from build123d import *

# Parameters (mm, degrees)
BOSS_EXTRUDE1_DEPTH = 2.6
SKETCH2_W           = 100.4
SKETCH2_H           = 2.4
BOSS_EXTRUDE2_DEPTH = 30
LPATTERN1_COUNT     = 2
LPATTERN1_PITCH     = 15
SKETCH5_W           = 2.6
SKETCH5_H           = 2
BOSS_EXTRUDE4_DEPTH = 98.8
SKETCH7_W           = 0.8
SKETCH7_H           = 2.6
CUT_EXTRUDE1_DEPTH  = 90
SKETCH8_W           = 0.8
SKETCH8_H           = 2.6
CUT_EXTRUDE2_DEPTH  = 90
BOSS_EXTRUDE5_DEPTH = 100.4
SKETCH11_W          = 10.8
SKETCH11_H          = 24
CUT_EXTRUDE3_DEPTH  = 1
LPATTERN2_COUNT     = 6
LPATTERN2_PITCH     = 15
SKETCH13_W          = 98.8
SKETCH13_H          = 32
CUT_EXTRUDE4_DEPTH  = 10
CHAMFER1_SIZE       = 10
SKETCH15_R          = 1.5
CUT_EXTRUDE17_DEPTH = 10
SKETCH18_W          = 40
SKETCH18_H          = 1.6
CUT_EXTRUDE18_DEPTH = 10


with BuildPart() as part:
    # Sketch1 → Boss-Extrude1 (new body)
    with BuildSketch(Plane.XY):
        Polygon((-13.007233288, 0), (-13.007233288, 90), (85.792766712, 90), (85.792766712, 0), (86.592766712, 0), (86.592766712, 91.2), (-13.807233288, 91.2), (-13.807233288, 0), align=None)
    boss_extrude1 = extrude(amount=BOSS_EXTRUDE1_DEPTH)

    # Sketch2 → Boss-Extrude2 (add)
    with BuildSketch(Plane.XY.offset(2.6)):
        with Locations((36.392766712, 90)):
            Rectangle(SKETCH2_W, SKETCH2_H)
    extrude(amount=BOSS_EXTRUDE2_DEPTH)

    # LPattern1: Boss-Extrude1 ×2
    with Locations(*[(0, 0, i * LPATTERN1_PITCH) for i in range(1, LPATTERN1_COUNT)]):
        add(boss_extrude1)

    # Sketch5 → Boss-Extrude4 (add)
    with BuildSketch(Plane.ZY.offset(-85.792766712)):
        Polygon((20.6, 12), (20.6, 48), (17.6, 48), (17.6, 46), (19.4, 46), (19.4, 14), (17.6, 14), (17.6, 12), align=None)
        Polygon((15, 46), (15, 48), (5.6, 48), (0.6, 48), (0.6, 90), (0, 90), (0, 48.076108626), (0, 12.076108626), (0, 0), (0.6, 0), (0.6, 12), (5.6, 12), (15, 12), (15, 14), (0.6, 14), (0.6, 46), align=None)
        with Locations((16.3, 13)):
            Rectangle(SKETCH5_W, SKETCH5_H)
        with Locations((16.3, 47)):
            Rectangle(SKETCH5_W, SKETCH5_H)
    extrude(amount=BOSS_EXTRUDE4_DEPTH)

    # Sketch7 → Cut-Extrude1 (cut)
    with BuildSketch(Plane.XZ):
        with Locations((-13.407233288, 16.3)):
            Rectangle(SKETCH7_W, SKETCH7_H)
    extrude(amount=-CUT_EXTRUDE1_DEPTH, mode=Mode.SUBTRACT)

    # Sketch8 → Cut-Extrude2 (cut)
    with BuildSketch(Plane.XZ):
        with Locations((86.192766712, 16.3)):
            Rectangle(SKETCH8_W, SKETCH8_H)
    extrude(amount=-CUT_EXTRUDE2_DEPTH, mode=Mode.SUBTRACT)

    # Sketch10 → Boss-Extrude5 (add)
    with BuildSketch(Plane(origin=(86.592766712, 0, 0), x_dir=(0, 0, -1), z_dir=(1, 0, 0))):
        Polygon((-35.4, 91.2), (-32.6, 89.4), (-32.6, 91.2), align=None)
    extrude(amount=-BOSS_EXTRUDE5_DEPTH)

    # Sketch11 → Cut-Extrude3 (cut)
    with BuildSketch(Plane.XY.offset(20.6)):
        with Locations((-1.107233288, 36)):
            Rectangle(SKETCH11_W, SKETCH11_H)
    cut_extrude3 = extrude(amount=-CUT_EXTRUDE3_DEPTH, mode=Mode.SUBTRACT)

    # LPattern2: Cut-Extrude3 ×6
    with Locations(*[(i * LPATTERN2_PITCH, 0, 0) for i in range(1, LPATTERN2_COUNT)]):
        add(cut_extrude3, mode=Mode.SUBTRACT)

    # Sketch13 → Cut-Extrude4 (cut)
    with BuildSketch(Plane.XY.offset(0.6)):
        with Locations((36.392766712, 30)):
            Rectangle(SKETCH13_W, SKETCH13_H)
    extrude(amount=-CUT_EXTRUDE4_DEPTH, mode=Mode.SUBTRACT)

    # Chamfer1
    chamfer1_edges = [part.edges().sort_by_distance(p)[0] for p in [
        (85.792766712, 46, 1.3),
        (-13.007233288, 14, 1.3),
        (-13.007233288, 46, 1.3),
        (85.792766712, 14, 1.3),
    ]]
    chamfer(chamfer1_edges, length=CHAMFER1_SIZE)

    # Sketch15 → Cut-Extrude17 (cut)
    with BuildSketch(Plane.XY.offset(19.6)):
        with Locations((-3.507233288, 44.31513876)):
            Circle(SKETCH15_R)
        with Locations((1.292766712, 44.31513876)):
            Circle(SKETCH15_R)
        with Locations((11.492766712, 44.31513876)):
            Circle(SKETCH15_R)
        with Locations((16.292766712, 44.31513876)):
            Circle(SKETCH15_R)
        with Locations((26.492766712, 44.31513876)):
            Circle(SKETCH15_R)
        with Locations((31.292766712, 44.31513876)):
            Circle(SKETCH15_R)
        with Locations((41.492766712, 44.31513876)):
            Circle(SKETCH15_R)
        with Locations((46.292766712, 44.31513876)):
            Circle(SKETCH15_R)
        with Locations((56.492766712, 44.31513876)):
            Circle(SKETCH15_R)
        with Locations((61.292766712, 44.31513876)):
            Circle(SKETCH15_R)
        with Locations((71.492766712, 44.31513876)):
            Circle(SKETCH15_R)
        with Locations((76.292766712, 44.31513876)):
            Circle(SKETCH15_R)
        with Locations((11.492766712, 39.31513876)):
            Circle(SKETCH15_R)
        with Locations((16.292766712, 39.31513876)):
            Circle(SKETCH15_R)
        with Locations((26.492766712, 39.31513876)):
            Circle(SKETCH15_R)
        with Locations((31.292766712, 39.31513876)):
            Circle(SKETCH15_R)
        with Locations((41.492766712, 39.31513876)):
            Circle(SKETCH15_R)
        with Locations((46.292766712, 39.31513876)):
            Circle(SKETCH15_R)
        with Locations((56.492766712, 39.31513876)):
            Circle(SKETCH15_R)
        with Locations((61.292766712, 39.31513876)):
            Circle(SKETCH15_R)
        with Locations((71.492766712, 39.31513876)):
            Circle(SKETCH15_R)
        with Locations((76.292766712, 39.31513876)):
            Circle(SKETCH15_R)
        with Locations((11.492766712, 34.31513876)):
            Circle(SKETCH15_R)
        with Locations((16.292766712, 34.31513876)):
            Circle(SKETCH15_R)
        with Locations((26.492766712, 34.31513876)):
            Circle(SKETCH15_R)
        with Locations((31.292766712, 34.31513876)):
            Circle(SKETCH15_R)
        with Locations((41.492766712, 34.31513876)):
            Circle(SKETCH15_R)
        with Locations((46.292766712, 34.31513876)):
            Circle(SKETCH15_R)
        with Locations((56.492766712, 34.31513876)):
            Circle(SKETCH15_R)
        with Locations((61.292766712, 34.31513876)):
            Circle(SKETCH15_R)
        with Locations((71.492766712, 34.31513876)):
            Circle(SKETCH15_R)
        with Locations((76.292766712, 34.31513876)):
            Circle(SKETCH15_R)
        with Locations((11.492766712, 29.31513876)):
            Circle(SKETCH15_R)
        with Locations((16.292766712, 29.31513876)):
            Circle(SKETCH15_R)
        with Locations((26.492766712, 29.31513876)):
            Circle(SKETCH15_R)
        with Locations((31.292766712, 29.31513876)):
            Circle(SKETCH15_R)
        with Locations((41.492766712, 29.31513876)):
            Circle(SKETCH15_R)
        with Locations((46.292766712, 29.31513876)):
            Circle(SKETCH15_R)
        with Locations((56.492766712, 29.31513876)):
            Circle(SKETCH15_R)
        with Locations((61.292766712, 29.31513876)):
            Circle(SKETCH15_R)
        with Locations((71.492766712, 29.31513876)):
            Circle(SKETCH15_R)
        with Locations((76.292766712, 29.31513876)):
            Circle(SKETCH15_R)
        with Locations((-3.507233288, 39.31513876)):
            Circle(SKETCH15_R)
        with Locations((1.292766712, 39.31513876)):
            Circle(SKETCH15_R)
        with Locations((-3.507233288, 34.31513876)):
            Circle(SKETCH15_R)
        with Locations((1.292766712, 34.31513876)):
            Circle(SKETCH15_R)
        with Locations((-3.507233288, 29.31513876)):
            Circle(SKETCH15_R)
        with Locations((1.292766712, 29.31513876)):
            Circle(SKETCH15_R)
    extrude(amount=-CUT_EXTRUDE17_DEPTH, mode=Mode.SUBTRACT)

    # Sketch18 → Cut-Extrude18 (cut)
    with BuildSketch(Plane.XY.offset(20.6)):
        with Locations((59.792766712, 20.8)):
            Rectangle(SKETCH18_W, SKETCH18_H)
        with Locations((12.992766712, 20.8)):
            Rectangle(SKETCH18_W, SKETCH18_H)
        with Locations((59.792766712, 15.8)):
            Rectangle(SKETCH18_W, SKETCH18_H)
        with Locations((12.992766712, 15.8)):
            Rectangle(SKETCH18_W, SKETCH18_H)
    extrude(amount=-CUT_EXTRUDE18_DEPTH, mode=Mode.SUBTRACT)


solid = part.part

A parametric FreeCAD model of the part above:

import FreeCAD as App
import Part
import Sketcher
from FreeCAD import Vector


def edges_at(feature, points):
    """Names of the edges that pass closest to the given points."""
    edges = feature.Shape.Edges
    near = lambda p: min(range(len(edges)), key=lambda i: edges[i].distToShape(Part.Vertex(*p))[0])
    return sorted({f"Edge{near(p) + 1}" for p in points})


def add_polygon(sketch, points):
    """Adds a closed chain of lines whose ends are joined by coincident constraints."""
    first, n = sketch.GeometryCount, len(points)
    for a, b in zip(points, points[1:] + points[:1]):
        sketch.addGeometry(Part.LineSegment(App.Vector(*a, 0), App.Vector(*b, 0)), False)
    for i in range(n):
        sketch.addConstraint(Sketcher.Constraint("Coincident", first + i, 2, first + (i + 1) % n, 1))

doc = App.newDocument("Part")
body = doc.addObject("PartDesign::Body", "Body")

# Sketch on XY plane
sketch1 = body.newObject("Sketcher::SketchObject", "Sketch")
sketch1.AttachmentSupport = (doc.getObject("XY_Plane"), [""])
sketch1.MapMode = "FlatFace"
add_polygon(sketch1, [(-13, 0), (-13, 90), (85.8, 90), (85.8, 0), (86.6, 0), (86.6, 91.2), (-13.8, 91.2), (-13.8, 0)])  # lines 0-7
sketch1.addConstraint(Sketcher.Constraint("Vertical", 0))
sketch1.addConstraint(Sketcher.Constraint("Horizontal", 1))
sketch1.addConstraint(Sketcher.Constraint("Vertical", 2))
sketch1.addConstraint(Sketcher.Constraint("Horizontal", 3))
sketch1.addConstraint(Sketcher.Constraint("Vertical", 4))
sketch1.addConstraint(Sketcher.Constraint("Horizontal", 5))
sketch1.addConstraint(Sketcher.Constraint("Vertical", 6))
sketch1.addConstraint(Sketcher.Constraint("Horizontal", 7))
sketch1.addConstraint(Sketcher.Constraint("PointOnObject", 2, 2, -1))
sketch1.addConstraint(Sketcher.Constraint("PointOnObject", 6, 2, -1))
sketch1.addConstraint(Sketcher.Constraint("Equal", 3, 7))
sketch1.addConstraint(Sketcher.Constraint("DistanceY", 0, 1, 0, 2, 90.0))
sketch1.addConstraint(Sketcher.Constraint("DistanceX", 1, 1, 1, 2, 98.8))
sketch1.addConstraint(Sketcher.Constraint("DistanceX", 3, 1, 3, 2, 0.8))
sketch1.addConstraint(Sketcher.Constraint("DistanceY", 4, 1, 4, 2, 91.2))
sketch1.addConstraint(Sketcher.Constraint("DistanceX", 0, 2, -1, 1, 13.007233))
pad1 = body.newObject("PartDesign::Pad", "Pad")
pad1.Profile = sketch1
pad1.Length = 2.6

# Sketch on XY plane
sketch2 = body.newObject("Sketcher::SketchObject", "Sketch001")
sketch2.AttachmentSupport = (doc.getObject("XY_Plane"), [""])
sketch2.MapMode = "FlatFace"
sketch2.AttachmentOffset = App.Placement(Vector(0, 0, 2.6), App.Rotation())
add_polygon(sketch2, [(-13.8, 91.2), (-13.8, 88.8), (86.6, 88.8), (86.6, 91.2)])  # lines 0-3
sketch2.addConstraint(Sketcher.Constraint("Vertical", 0))
sketch2.addConstraint(Sketcher.Constraint("Horizontal", 1))
sketch2.addConstraint(Sketcher.Constraint("Vertical", 2))
sketch2.addConstraint(Sketcher.Constraint("Horizontal", 3))
sketch2.addConstraint(Sketcher.Constraint("DistanceX", 1, 1, 1, 2, 100.4))
sketch2.addConstraint(Sketcher.Constraint("DistanceY", 0, 2, 0, 1, 2.4))
sketch2.addConstraint(Sketcher.Constraint("DistanceY", -1, 1, 0, 2, 88.8))
sketch2.addConstraint(Sketcher.Constraint("DistanceX", 0, 2, -1, 1, 13.807233))
pad2 = body.newObject("PartDesign::Pad", "Pad001")
pad2.Profile = sketch2
pad2.Length = 30
doc.recompute()

linearpattern = body.newObject("PartDesign::LinearPattern", "LinearPattern")
linearpattern.Originals = [pad1]
linearpattern.Direction = (doc.getObject("Z_Axis"), [""])
linearpattern.Mode = "offset"
linearpattern.Offset = 15
linearpattern.Occurrences = 2
body.Tip = linearpattern

# Sketch on YZ plane
sketch3 = body.newObject("Sketcher::SketchObject", "Sketch002")
sketch3.AttachmentSupport = (doc.getObject("YZ_Plane"), [""])
sketch3.MapMode = "FlatFace"
sketch3.AttachmentOffset = App.Placement(Vector(0, 0, 85.792767), App.Rotation())
add_polygon(sketch3, [(12, 20.6), (48, 20.6), (48, 0.6), (90, 0.6), (90, 0), (0, 0), (0, 0.6), (12, 0.6)])  # lines 0-7
add_polygon(sketch3, [(46, 19.4), (14, 19.4), (14, 0.6), (46, 0.6)])  # lines 8-11
sketch3.addConstraint(Sketcher.Constraint("Horizontal", 0))
sketch3.addConstraint(Sketcher.Constraint("Vertical", 1))
sketch3.addConstraint(Sketcher.Constraint("Horizontal", 2))
sketch3.addConstraint(Sketcher.Constraint("Vertical", 3))
sketch3.addConstraint(Sketcher.Constraint("Horizontal", 4))
sketch3.addConstraint(Sketcher.Constraint("Vertical", 5))
sketch3.addConstraint(Sketcher.Constraint("Horizontal", 6))
sketch3.addConstraint(Sketcher.Constraint("Vertical", 7))
sketch3.addConstraint(Sketcher.Constraint("Horizontal", 8))
sketch3.addConstraint(Sketcher.Constraint("Vertical", 9))
sketch3.addConstraint(Sketcher.Constraint("Horizontal", 10))
sketch3.addConstraint(Sketcher.Constraint("Vertical", 11))
sketch3.addConstraint(Sketcher.Constraint("Coincident", 4, 2, -1, 1))
sketch3.addConstraint(Sketcher.Constraint("Horizontal", 2, 2, 5, 2))
sketch3.addConstraint(Sketcher.Constraint("Horizontal", 6, 2, 9, 2))
sketch3.addConstraint(Sketcher.Constraint("DistanceX", 0, 1, 0, 2, 36.0))
sketch3.addConstraint(Sketcher.Constraint("DistanceX", 2, 1, 2, 2, 42.0))
sketch3.addConstraint(Sketcher.Constraint("DistanceX", 4, 2, 4, 1, 90.0))
sketch3.addConstraint(Sketcher.Constraint("DistanceX", 8, 2, 8, 1, 32.0))
sketch3.addConstraint(Sketcher.Constraint("DistanceY", 1, 2, 1, 1, 20.0))
sketch3.addConstraint(Sketcher.Constraint("DistanceY", 3, 2, 3, 1, 0.6))
sketch3.addConstraint(Sketcher.Constraint("DistanceY", 9, 2, 9, 1, 18.8))
sketch3.addConstraint(Sketcher.Constraint("DistanceX", -1, 1, 8, 2, 14.0))
pad3 = body.newObject("PartDesign::Pad", "Pad002")
pad3.Profile = sketch3
pad3.Length = 98.8
pad3.Reversed = True

# Sketch on XZ plane
sketch4 = body.newObject("Sketcher::SketchObject", "Sketch003")
sketch4.AttachmentSupport = (doc.getObject("XZ_Plane"), [""])
sketch4.MapMode = "FlatFace"
add_polygon(sketch4, [(-13.8, 17.6), (-13.8, 15), (-13, 15), (-13, 17.6)])  # lines 0-3
sketch4.addConstraint(Sketcher.Constraint("Vertical", 0))
sketch4.addConstraint(Sketcher.Constraint("Horizontal", 1))
sketch4.addConstraint(Sketcher.Constraint("Vertical", 2))
sketch4.addConstraint(Sketcher.Constraint("Horizontal", 3))
sketch4.addConstraint(Sketcher.Constraint("DistanceX", 1, 1, 1, 2, 0.8))
sketch4.addConstraint(Sketcher.Constraint("DistanceY", 0, 2, 0, 1, 2.6))
sketch4.addConstraint(Sketcher.Constraint("DistanceY", -1, 1, 0, 2, 15.0))
sketch4.addConstraint(Sketcher.Constraint("DistanceX", 0, 2, -1, 1, 13.807233))
pocket1 = body.newObject("PartDesign::Pocket", "Pocket")
pocket1.Profile = sketch4
pocket1.Length = 90

# Sketch on XZ plane
sketch5 = body.newObject("Sketcher::SketchObject", "Sketch004")
sketch5.AttachmentSupport = (doc.getObject("XZ_Plane"), [""])
sketch5.MapMode = "FlatFace"
add_polygon(sketch5, [(85.8, 17.6), (85.8, 15), (86.6, 15), (86.6, 17.6)])  # lines 0-3
sketch5.addConstraint(Sketcher.Constraint("Vertical", 0))
sketch5.addConstraint(Sketcher.Constraint("Horizontal", 1))
sketch5.addConstraint(Sketcher.Constraint("Vertical", 2))
sketch5.addConstraint(Sketcher.Constraint("Horizontal", 3))
sketch5.addConstraint(Sketcher.Constraint("DistanceX", 1, 1, 1, 2, 0.8))
sketch5.addConstraint(Sketcher.Constraint("DistanceY", 0, 2, 0, 1, 2.6))
sketch5.addConstraint(Sketcher.Constraint("DistanceY", -1, 1, 0, 2, 15.0))
sketch5.addConstraint(Sketcher.Constraint("DistanceX", -1, 1, 0, 2, 85.792767))
pocket2 = body.newObject("PartDesign::Pocket", "Pocket001")
pocket2.Profile = sketch5
pocket2.Length = 90

# Sketch on YZ plane
sketch6 = body.newObject("Sketcher::SketchObject", "Sketch005")
sketch6.AttachmentSupport = (doc.getObject("YZ_Plane"), [""])
sketch6.MapMode = "FlatFace"
sketch6.AttachmentOffset = App.Placement(Vector(0, 0, 86.592767), App.Rotation())
add_polygon(sketch6, [(91.2, 35.4), (89.4, 32.6), (91.2, 32.6)])  # lines 0-2
sketch6.addConstraint(Sketcher.Constraint("Horizontal", 1))
sketch6.addConstraint(Sketcher.Constraint("Vertical", 2))
sketch6.addConstraint(Sketcher.Constraint("DistanceX", 1, 1, 1, 2, 1.8))
sketch6.addConstraint(Sketcher.Constraint("DistanceY", 2, 1, 2, 2, 2.8))
sketch6.addConstraint(Sketcher.Constraint("DistanceX", -1, 1, 0, 2, 89.4))
sketch6.addConstraint(Sketcher.Constraint("DistanceY", -1, 1, 0, 2, 32.6))
pad4 = body.newObject("PartDesign::Pad", "Pad003")
pad4.Profile = sketch6
pad4.Length = 100.4
pad4.Reversed = True

# Sketch on XY plane
sketch7 = body.newObject("Sketcher::SketchObject", "Sketch006")
sketch7.AttachmentSupport = (doc.getObject("XY_Plane"), [""])
sketch7.MapMode = "FlatFace"
sketch7.AttachmentOffset = App.Placement(Vector(0, 0, 20.6), App.Rotation())
add_polygon(sketch7, [(-7, 48), (-7, 24), (4, 24), (4, 48)])  # lines 0-3
sketch7.addConstraint(Sketcher.Constraint("Vertical", 0))
sketch7.addConstraint(Sketcher.Constraint("Horizontal", 1))
sketch7.addConstraint(Sketcher.Constraint("Vertical", 2))
sketch7.addConstraint(Sketcher.Constraint("Horizontal", 3))
sketch7.addConstraint(Sketcher.Constraint("DistanceY", 0, 2, 0, 1, 24.0))
sketch7.addConstraint(Sketcher.Constraint("DistanceX", 1, 1, 1, 2, 10.8))
sketch7.addConstraint(Sketcher.Constraint("DistanceY", -1, 1, 0, 2, 24.0))
sketch7.addConstraint(Sketcher.Constraint("DistanceX", 0, 2, -1, 1, 6.507233))
pocket3 = body.newObject("PartDesign::Pocket", "Pocket002")
pocket3.Profile = sketch7
pocket3.Length = 1
doc.recompute()

linearpattern2 = body.newObject("PartDesign::LinearPattern", "LinearPattern001")
linearpattern2.Originals = [pocket3]
linearpattern2.Direction = (doc.getObject("X_Axis"), [""])
linearpattern2.Mode = "offset"
linearpattern2.Offset = 15
linearpattern2.Occurrences = 6
body.Tip = linearpattern2

# Sketch on XY plane
sketch8 = body.newObject("Sketcher::SketchObject", "Sketch007")
sketch8.AttachmentSupport = (doc.getObject("XY_Plane"), [""])
sketch8.MapMode = "FlatFace"
sketch8.AttachmentOffset = App.Placement(Vector(0, 0, 0.6), App.Rotation())
add_polygon(sketch8, [(-13, 46), (-13, 14), (86, 14), (86, 46)])  # lines 0-3
sketch8.addConstraint(Sketcher.Constraint("Vertical", 0))
sketch8.addConstraint(Sketcher.Constraint("Horizontal", 1))
sketch8.addConstraint(Sketcher.Constraint("Vertical", 2))
sketch8.addConstraint(Sketcher.Constraint("Horizontal", 3))
sketch8.addConstraint(Sketcher.Constraint("DistanceY", 0, 2, 0, 1, 32.0))
sketch8.addConstraint(Sketcher.Constraint("DistanceX", 1, 1, 1, 2, 98.8))
sketch8.addConstraint(Sketcher.Constraint("DistanceY", -1, 1, 0, 2, 14.0))
sketch8.addConstraint(Sketcher.Constraint("DistanceX", 0, 2, -1, 1, 13.007233))
pocket4 = body.newObject("PartDesign::Pocket", "Pocket003")
pocket4.Profile = sketch8
pocket4.Length = 10
doc.recompute()

chamfer = body.newObject("PartDesign::Chamfer", "Chamfer")
chamfer.Base = (pocket4, edges_at(pocket4, [
    (85.793, 46, 1.3),
    (-13.007, 14, 1.3),
    (-13.007, 46, 1.3),
    (85.793, 14, 1.3),
]))
chamfer.Size = 10

# Sketch on XY plane
sketch9 = body.newObject("Sketcher::SketchObject", "Sketch008")
sketch9.AttachmentSupport = (doc.getObject("XY_Plane"), [""])
sketch9.MapMode = "FlatFace"
sketch9.AttachmentOffset = App.Placement(Vector(0, 0, 19.6), App.Rotation())
sketch9.addGeometry(Part.Circle(Vector(-3.5, 44.3, 0), Vector(0, 0, 1), 1.5), False)
sketch9.addGeometry(Part.Circle(Vector(1.3, 44.3, 0), Vector(0, 0, 1), 1.5), False)
sketch9.addGeometry(Part.Circle(Vector(11.5, 44.3, 0), Vector(0, 0, 1), 1.5), False)
sketch9.addGeometry(Part.Circle(Vector(16.3, 44.3, 0), Vector(0, 0, 1), 1.5), False)
sketch9.addGeometry(Part.Circle(Vector(26.5, 44.3, 0), Vector(0, 0, 1), 1.5), False)
sketch9.addGeometry(Part.Circle(Vector(31.3, 44.3, 0), Vector(0, 0, 1), 1.5), False)
sketch9.addGeometry(Part.Circle(Vector(41.5, 44.3, 0), Vector(0, 0, 1), 1.5), False)
sketch9.addGeometry(Part.Circle(Vector(46.3, 44.3, 0), Vector(0, 0, 1), 1.5), False)
sketch9.addGeometry(Part.Circle(Vector(56.5, 44.3, 0), Vector(0, 0, 1), 1.5), False)
sketch9.addGeometry(Part.Circle(Vector(61.3, 44.3, 0), Vector(0, 0, 1), 1.5), False)
sketch9.addGeometry(Part.Circle(Vector(71.5, 44.3, 0), Vector(0, 0, 1), 1.5), False)
sketch9.addGeometry(Part.Circle(Vector(76.3, 44.3, 0), Vector(0, 0, 1), 1.5), False)
sketch9.addGeometry(Part.Circle(Vector(11.5, 39.3, 0), Vector(0, 0, 1), 1.5), False)
sketch9.addGeometry(Part.Circle(Vector(16.3, 39.3, 0), Vector(0, 0, 1), 1.5), False)
sketch9.addGeometry(Part.Circle(Vector(26.5, 39.3, 0), Vector(0, 0, 1), 1.5), False)
sketch9.addGeometry(Part.Circle(Vector(31.3, 39.3, 0), Vector(0, 0, 1), 1.5), False)
sketch9.addGeometry(Part.Circle(Vector(41.5, 39.3, 0), Vector(0, 0, 1), 1.5), False)
sketch9.addGeometry(Part.Circle(Vector(46.3, 39.3, 0), Vector(0, 0, 1), 1.5), False)
sketch9.addGeometry(Part.Circle(Vector(56.5, 39.3, 0), Vector(0, 0, 1), 1.5), False)
sketch9.addGeometry(Part.Circle(Vector(61.3, 39.3, 0), Vector(0, 0, 1), 1.5), False)
sketch9.addGeometry(Part.Circle(Vector(71.5, 39.3, 0), Vector(0, 0, 1), 1.5), False)
sketch9.addGeometry(Part.Circle(Vector(76.3, 39.3, 0), Vector(0, 0, 1), 1.5), False)
sketch9.addGeometry(Part.Circle(Vector(11.5, 34.3, 0), Vector(0, 0, 1), 1.5), False)
sketch9.addGeometry(Part.Circle(Vector(16.3, 34.3, 0), Vector(0, 0, 1), 1.5), False)
sketch9.addGeometry(Part.Circle(Vector(26.5, 34.3, 0), Vector(0, 0, 1), 1.5), False)
sketch9.addGeometry(Part.Circle(Vector(31.3, 34.3, 0), Vector(0, 0, 1), 1.5), False)
sketch9.addGeometry(Part.Circle(Vector(41.5, 34.3, 0), Vector(0, 0, 1), 1.5), False)
sketch9.addGeometry(Part.Circle(Vector(46.3, 34.3, 0), Vector(0, 0, 1), 1.5), False)
sketch9.addGeometry(Part.Circle(Vector(56.5, 34.3, 0), Vector(0, 0, 1), 1.5), False)
sketch9.addGeometry(Part.Circle(Vector(61.3, 34.3, 0), Vector(0, 0, 1), 1.5), False)
sketch9.addGeometry(Part.Circle(Vector(71.5, 34.3, 0), Vector(0, 0, 1), 1.5), False)
sketch9.addGeometry(Part.Circle(Vector(76.3, 34.3, 0), Vector(0, 0, 1), 1.5), False)
sketch9.addGeometry(Part.Circle(Vector(11.5, 29.3, 0), Vector(0, 0, 1), 1.5), False)
sketch9.addGeometry(Part.Circle(Vector(16.3, 29.3, 0), Vector(0, 0, 1), 1.5), False)
sketch9.addGeometry(Part.Circle(Vector(26.5, 29.3, 0), Vector(0, 0, 1), 1.5), False)
sketch9.addGeometry(Part.Circle(Vector(31.3, 29.3, 0), Vector(0, 0, 1), 1.5), False)
sketch9.addGeometry(Part.Circle(Vector(41.5, 29.3, 0), Vector(0, 0, 1), 1.5), False)
sketch9.addGeometry(Part.Circle(Vector(46.3, 29.3, 0), Vector(0, 0, 1), 1.5), False)
sketch9.addGeometry(Part.Circle(Vector(56.5, 29.3, 0), Vector(0, 0, 1), 1.5), False)
sketch9.addGeometry(Part.Circle(Vector(61.3, 29.3, 0), Vector(0, 0, 1), 1.5), False)
sketch9.addGeometry(Part.Circle(Vector(71.5, 29.3, 0), Vector(0, 0, 1), 1.5), False)
sketch9.addGeometry(Part.Circle(Vector(76.3, 29.3, 0), Vector(0, 0, 1), 1.5), False)
sketch9.addGeometry(Part.Circle(Vector(-3.5, 39.3, 0), Vector(0, 0, 1), 1.5), False)
sketch9.addGeometry(Part.Circle(Vector(1.3, 39.3, 0), Vector(0, 0, 1), 1.5), False)
sketch9.addGeometry(Part.Circle(Vector(-3.5, 34.3, 0), Vector(0, 0, 1), 1.5), False)
sketch9.addGeometry(Part.Circle(Vector(1.3, 34.3, 0), Vector(0, 0, 1), 1.5), False)
sketch9.addGeometry(Part.Circle(Vector(-3.5, 29.3, 0), Vector(0, 0, 1), 1.5), False)
sketch9.addGeometry(Part.Circle(Vector(1.3, 29.3, 0), Vector(0, 0, 1), 1.5), False)
sketch9.addConstraint(Sketcher.Constraint("Equal", 0, 1))
sketch9.addConstraint(Sketcher.Constraint("Equal", 1, 2))
sketch9.addConstraint(Sketcher.Constraint("Equal", 2, 3))
sketch9.addConstraint(Sketcher.Constraint("Equal", 3, 4))
sketch9.addConstraint(Sketcher.Constraint("Equal", 4, 5))
sketch9.addConstraint(Sketcher.Constraint("Equal", 5, 6))
sketch9.addConstraint(Sketcher.Constraint("Equal", 6, 7))
sketch9.addConstraint(Sketcher.Constraint("Equal", 7, 8))
sketch9.addConstraint(Sketcher.Constraint("Equal", 8, 9))
sketch9.addConstraint(Sketcher.Constraint("Equal", 9, 10))
sketch9.addConstraint(Sketcher.Constraint("Equal", 10, 11))
sketch9.addConstraint(Sketcher.Constraint("Equal", 11, 12))
sketch9.addConstraint(Sketcher.Constraint("Equal", 12, 13))
sketch9.addConstraint(Sketcher.Constraint("Equal", 13, 14))
sketch9.addConstraint(Sketcher.Constraint("Equal", 14, 15))
sketch9.addConstraint(Sketcher.Constraint("Equal", 15, 16))
sketch9.addConstraint(Sketcher.Constraint("Equal", 16, 17))
sketch9.addConstraint(Sketcher.Constraint("Equal", 17, 18))
sketch9.addConstraint(Sketcher.Constraint("Equal", 18, 19))
sketch9.addConstraint(Sketcher.Constraint("Equal", 19, 20))
sketch9.addConstraint(Sketcher.Constraint("Equal", 20, 21))
sketch9.addConstraint(Sketcher.Constraint("Equal", 21, 22))
sketch9.addConstraint(Sketcher.Constraint("Equal", 22, 23))
sketch9.addConstraint(Sketcher.Constraint("Equal", 23, 24))
sketch9.addConstraint(Sketcher.Constraint("Equal", 24, 25))
sketch9.addConstraint(Sketcher.Constraint("Equal", 25, 26))
sketch9.addConstraint(Sketcher.Constraint("Equal", 26, 27))
sketch9.addConstraint(Sketcher.Constraint("Equal", 27, 28))
sketch9.addConstraint(Sketcher.Constraint("Equal", 28, 29))
sketch9.addConstraint(Sketcher.Constraint("Equal", 29, 30))
sketch9.addConstraint(Sketcher.Constraint("Equal", 30, 31))
sketch9.addConstraint(Sketcher.Constraint("Equal", 31, 32))
sketch9.addConstraint(Sketcher.Constraint("Equal", 32, 33))
sketch9.addConstraint(Sketcher.Constraint("Equal", 33, 34))
sketch9.addConstraint(Sketcher.Constraint("Equal", 34, 35))
sketch9.addConstraint(Sketcher.Constraint("Equal", 35, 36))
sketch9.addConstraint(Sketcher.Constraint("Equal", 36, 37))
sketch9.addConstraint(Sketcher.Constraint("Equal", 37, 38))
sketch9.addConstraint(Sketcher.Constraint("Equal", 38, 39))
sketch9.addConstraint(Sketcher.Constraint("Equal", 39, 40))
sketch9.addConstraint(Sketcher.Constraint("Equal", 40, 41))
sketch9.addConstraint(Sketcher.Constraint("Equal", 41, 42))
sketch9.addConstraint(Sketcher.Constraint("Equal", 42, 43))
sketch9.addConstraint(Sketcher.Constraint("Equal", 43, 44))
sketch9.addConstraint(Sketcher.Constraint("Equal", 44, 45))
sketch9.addConstraint(Sketcher.Constraint("Equal", 45, 46))
sketch9.addConstraint(Sketcher.Constraint("Equal", 46, 47))
sketch9.addConstraint(Sketcher.Constraint("Horizontal", 0, 3, 1, 3))
sketch9.addConstraint(Sketcher.Constraint("Horizontal", 1, 3, 2, 3))
sketch9.addConstraint(Sketcher.Constraint("Horizontal", 2, 3, 3, 3))
sketch9.addConstraint(Sketcher.Constraint("Horizontal", 3, 3, 4, 3))
sketch9.addConstraint(Sketcher.Constraint("Horizontal", 4, 3, 5, 3))
sketch9.addConstraint(Sketcher.Constraint("Horizontal", 5, 3, 6, 3))
sketch9.addConstraint(Sketcher.Constraint("Horizontal", 6, 3, 7, 3))
sketch9.addConstraint(Sketcher.Constraint("Horizontal", 7, 3, 8, 3))
sketch9.addConstraint(Sketcher.Constraint("Horizontal", 8, 3, 9, 3))
sketch9.addConstraint(Sketcher.Constraint("Horizontal", 9, 3, 10, 3))
sketch9.addConstraint(Sketcher.Constraint("Horizontal", 10, 3, 11, 3))
sketch9.addConstraint(Sketcher.Constraint("Horizontal", 12, 3, 13, 3))
sketch9.addConstraint(Sketcher.Constraint("Horizontal", 13, 3, 14, 3))
sketch9.addConstraint(Sketcher.Constraint("Horizontal", 14, 3, 15, 3))
sketch9.addConstraint(Sketcher.Constraint("Horizontal", 15, 3, 16, 3))
sketch9.addConstraint(Sketcher.Constraint("Horizontal", 16, 3, 17, 3))
sketch9.addConstraint(Sketcher.Constraint("Horizontal", 17, 3, 18, 3))
sketch9.addConstraint(Sketcher.Constraint("Horizontal", 18, 3, 19, 3))
sketch9.addConstraint(Sketcher.Constraint("Horizontal", 19, 3, 20, 3))
sketch9.addConstraint(Sketcher.Constraint("Horizontal", 20, 3, 21, 3))
sketch9.addConstraint(Sketcher.Constraint("Horizontal", 22, 3, 23, 3))
sketch9.addConstraint(Sketcher.Constraint("Horizontal", 23, 3, 24, 3))
sketch9.addConstraint(Sketcher.Constraint("Horizontal", 24, 3, 25, 3))
sketch9.addConstraint(Sketcher.Constraint("Horizontal", 25, 3, 26, 3))
sketch9.addConstraint(Sketcher.Constraint("Horizontal", 26, 3, 27, 3))
sketch9.addConstraint(Sketcher.Constraint("Horizontal", 27, 3, 28, 3))
sketch9.addConstraint(Sketcher.Constraint("Horizontal", 28, 3, 29, 3))
sketch9.addConstraint(Sketcher.Constraint("Horizontal", 29, 3, 30, 3))
sketch9.addConstraint(Sketcher.Constraint("Horizontal", 30, 3, 31, 3))
sketch9.addConstraint(Sketcher.Constraint("Horizontal", 32, 3, 33, 3))
sketch9.addConstraint(Sketcher.Constraint("Horizontal", 33, 3, 34, 3))
sketch9.addConstraint(Sketcher.Constraint("Horizontal", 34, 3, 35, 3))
sketch9.addConstraint(Sketcher.Constraint("Horizontal", 35, 3, 36, 3))
sketch9.addConstraint(Sketcher.Constraint("Horizontal", 36, 3, 37, 3))
sketch9.addConstraint(Sketcher.Constraint("Horizontal", 37, 3, 38, 3))
sketch9.addConstraint(Sketcher.Constraint("Horizontal", 38, 3, 39, 3))
sketch9.addConstraint(Sketcher.Constraint("Horizontal", 39, 3, 40, 3))
sketch9.addConstraint(Sketcher.Constraint("Horizontal", 40, 3, 41, 3))
sketch9.addConstraint(Sketcher.Constraint("Horizontal", 21, 3, 42, 3))
sketch9.addConstraint(Sketcher.Constraint("Horizontal", 42, 3, 43, 3))
sketch9.addConstraint(Sketcher.Constraint("Horizontal", 31, 3, 44, 3))
sketch9.addConstraint(Sketcher.Constraint("Horizontal", 44, 3, 45, 3))
sketch9.addConstraint(Sketcher.Constraint("Horizontal", 41, 3, 46, 3))
sketch9.addConstraint(Sketcher.Constraint("Horizontal", 46, 3, 47, 3))
sketch9.addConstraint(Sketcher.Constraint("Vertical", 2, 3, 12, 3))
sketch9.addConstraint(Sketcher.Constraint("Vertical", 3, 3, 13, 3))
sketch9.addConstraint(Sketcher.Constraint("Vertical", 4, 3, 14, 3))
sketch9.addConstraint(Sketcher.Constraint("Vertical", 5, 3, 15, 3))
sketch9.addConstraint(Sketcher.Constraint("Vertical", 6, 3, 16, 3))
sketch9.addConstraint(Sketcher.Constraint("Vertical", 7, 3, 17, 3))
sketch9.addConstraint(Sketcher.Constraint("Vertical", 8, 3, 18, 3))
sketch9.addConstraint(Sketcher.Constraint("Vertical", 9, 3, 19, 3))
sketch9.addConstraint(Sketcher.Constraint("Vertical", 10, 3, 20, 3))
sketch9.addConstraint(Sketcher.Constraint("Vertical", 11, 3, 21, 3))
sketch9.addConstraint(Sketcher.Constraint("Vertical", 12, 3, 22, 3))
sketch9.addConstraint(Sketcher.Constraint("Vertical", 13, 3, 23, 3))
sketch9.addConstraint(Sketcher.Constraint("Vertical", 14, 3, 24, 3))
sketch9.addConstraint(Sketcher.Constraint("Vertical", 15, 3, 25, 3))
sketch9.addConstraint(Sketcher.Constraint("Vertical", 16, 3, 26, 3))
sketch9.addConstraint(Sketcher.Constraint("Vertical", 17, 3, 27, 3))
sketch9.addConstraint(Sketcher.Constraint("Vertical", 18, 3, 28, 3))
sketch9.addConstraint(Sketcher.Constraint("Vertical", 19, 3, 29, 3))
sketch9.addConstraint(Sketcher.Constraint("Vertical", 20, 3, 30, 3))
sketch9.addConstraint(Sketcher.Constraint("Vertical", 21, 3, 31, 3))
sketch9.addConstraint(Sketcher.Constraint("Vertical", 22, 3, 32, 3))
sketch9.addConstraint(Sketcher.Constraint("Vertical", 23, 3, 33, 3))
sketch9.addConstraint(Sketcher.Constraint("Vertical", 24, 3, 34, 3))
sketch9.addConstraint(Sketcher.Constraint("Vertical", 25, 3, 35, 3))
sketch9.addConstraint(Sketcher.Constraint("Vertical", 26, 3, 36, 3))
sketch9.addConstraint(Sketcher.Constraint("Vertical", 27, 3, 37, 3))
sketch9.addConstraint(Sketcher.Constraint("Vertical", 28, 3, 38, 3))
sketch9.addConstraint(Sketcher.Constraint("Vertical", 29, 3, 39, 3))
sketch9.addConstraint(Sketcher.Constraint("Vertical", 30, 3, 40, 3))
sketch9.addConstraint(Sketcher.Constraint("Vertical", 31, 3, 41, 3))
sketch9.addConstraint(Sketcher.Constraint("Vertical", 0, 3, 42, 3))
sketch9.addConstraint(Sketcher.Constraint("Vertical", 1, 3, 43, 3))
sketch9.addConstraint(Sketcher.Constraint("Vertical", 42, 3, 44, 3))
sketch9.addConstraint(Sketcher.Constraint("Vertical", 43, 3, 45, 3))
sketch9.addConstraint(Sketcher.Constraint("Vertical", 44, 3, 46, 3))
sketch9.addConstraint(Sketcher.Constraint("Vertical", 45, 3, 47, 3))
sketch9.addConstraint(Sketcher.Constraint("Diameter", 0, 3.0))
sketch9.addConstraint(Sketcher.Constraint("DistanceX", 0, 3, 2, 3, 15.0))
sketch9.addConstraint(Sketcher.Constraint("DistanceX", 1, 3, 3, 3, 15.0))
sketch9.addConstraint(Sketcher.Constraint("DistanceX", 2, 3, 4, 3, 15.0))
sketch9.addConstraint(Sketcher.Constraint("DistanceX", 3, 3, 5, 3, 15.0))
sketch9.addConstraint(Sketcher.Constraint("DistanceX", 4, 3, 6, 3, 15.0))
sketch9.addConstraint(Sketcher.Constraint("DistanceX", 5, 3, 7, 3, 15.0))
sketch9.addConstraint(Sketcher.Constraint("DistanceX", 6, 3, 8, 3, 15.0))
sketch9.addConstraint(Sketcher.Constraint("DistanceX", 7, 3, 9, 3, 15.0))
sketch9.addConstraint(Sketcher.Constraint("DistanceX", 8, 3, 10, 3, 15.0))
sketch9.addConstraint(Sketcher.Constraint("DistanceX", 9, 3, 11, 3, 15.0))
sketch9.addConstraint(Sketcher.Constraint("DistanceY", 12, 3, 2, 3, 5.0))
sketch9.addConstraint(Sketcher.Constraint("DistanceY", 22, 3, 12, 3, 5.0))
sketch9.addConstraint(Sketcher.Constraint("DistanceY", 32, 3, 22, 3, 5.0))
sketch9.addConstraint(Sketcher.Constraint("DistanceX", 0, 3, 1, 3, 4.8))
sketch9.addConstraint(Sketcher.Constraint("DistanceY", -1, 1, 0, 3, 44.315139))
sketch9.addConstraint(Sketcher.Constraint("DistanceX", 0, 3, -1, 1, 3.507233))
pocket5 = body.newObject("PartDesign::Pocket", "Pocket004")
pocket5.Profile = sketch9
pocket5.Length = 10

# Sketch on XY plane
sketch10 = body.newObject("Sketcher::SketchObject", "Sketch009")
sketch10.AttachmentSupport = (doc.getObject("XY_Plane"), [""])
sketch10.MapMode = "FlatFace"
sketch10.AttachmentOffset = App.Placement(Vector(0, 0, 20.6), App.Rotation())
add_polygon(sketch10, [(39.8, 21.6), (39.8, 20), (79.8, 20), (79.8, 21.6)])  # lines 0-3
add_polygon(sketch10, [(-7, 21.6), (-7, 20), (33, 20), (33, 21.6)])  # lines 4-7
add_polygon(sketch10, [(39.8, 16.6), (39.8, 15), (79.8, 15), (79.8, 16.6)])  # lines 8-11
add_polygon(sketch10, [(-7, 16.6), (-7, 15), (33, 15), (33, 16.6)])  # lines 12-15
sketch10.addConstraint(Sketcher.Constraint("Vertical", 0))
sketch10.addConstraint(Sketcher.Constraint("Horizontal", 1))
sketch10.addConstraint(Sketcher.Constraint("Vertical", 2))
sketch10.addConstraint(Sketcher.Constraint("Horizontal", 3))
sketch10.addConstraint(Sketcher.Constraint("Vertical", 4))
sketch10.addConstraint(Sketcher.Constraint("Horizontal", 5))
sketch10.addConstraint(Sketcher.Constraint("Vertical", 6))
sketch10.addConstraint(Sketcher.Constraint("Horizontal", 7))
sketch10.addConstraint(Sketcher.Constraint("Vertical", 8))
sketch10.addConstraint(Sketcher.Constraint("Horizontal", 9))
sketch10.addConstraint(Sketcher.Constraint("Vertical", 10))
sketch10.addConstraint(Sketcher.Constraint("Horizontal", 11))
sketch10.addConstraint(Sketcher.Constraint("Vertical", 12))
sketch10.addConstraint(Sketcher.Constraint("Horizontal", 13))
sketch10.addConstraint(Sketcher.Constraint("Vertical", 14))
sketch10.addConstraint(Sketcher.Constraint("Horizontal", 15))
sketch10.addConstraint(Sketcher.Constraint("Horizontal", 1, 2, 4, 2))
sketch10.addConstraint(Sketcher.Constraint("Horizontal", 3, 2, 6, 2))
sketch10.addConstraint(Sketcher.Constraint("Horizontal", 9, 2, 12, 2))
sketch10.addConstraint(Sketcher.Constraint("Horizontal", 11, 2, 14, 2))
sketch10.addConstraint(Sketcher.Constraint("Vertical", 3, 2, 8, 2))
sketch10.addConstraint(Sketcher.Constraint("Vertical", 2, 2, 9, 2))
sketch10.addConstraint(Sketcher.Constraint("Vertical", 7, 2, 12, 2))
sketch10.addConstraint(Sketcher.Constraint("Vertical", 6, 2, 13, 2))
sketch10.addConstraint(Sketcher.Constraint("Equal", 3, 5))
sketch10.addConstraint(Sketcher.Constraint("Equal", 6, 8))
sketch10.addConstraint(Sketcher.Constraint("DistanceX", 1, 1, 1, 2, 40.0))
sketch10.addConstraint(Sketcher.Constraint("DistanceY", 0, 2, 0, 1, 1.6))
sketch10.addConstraint(Sketcher.Constraint("DistanceY", -1, 1, 0, 2, 20.0))
sketch10.addConstraint(Sketcher.Constraint("DistanceY", -1, 1, 8, 2, 15.0))
sketch10.addConstraint(Sketcher.Constraint("DistanceX", 4, 2, 0, 2, 46.8))
sketch10.addConstraint(Sketcher.Constraint("DistanceX", -1, 1, 0, 2, 39.792767))
pocket6 = body.newObject("PartDesign::Pocket", "Pocket005")
pocket6.Profile = sketch10
pocket6.Length = 10

doc.recompute()
